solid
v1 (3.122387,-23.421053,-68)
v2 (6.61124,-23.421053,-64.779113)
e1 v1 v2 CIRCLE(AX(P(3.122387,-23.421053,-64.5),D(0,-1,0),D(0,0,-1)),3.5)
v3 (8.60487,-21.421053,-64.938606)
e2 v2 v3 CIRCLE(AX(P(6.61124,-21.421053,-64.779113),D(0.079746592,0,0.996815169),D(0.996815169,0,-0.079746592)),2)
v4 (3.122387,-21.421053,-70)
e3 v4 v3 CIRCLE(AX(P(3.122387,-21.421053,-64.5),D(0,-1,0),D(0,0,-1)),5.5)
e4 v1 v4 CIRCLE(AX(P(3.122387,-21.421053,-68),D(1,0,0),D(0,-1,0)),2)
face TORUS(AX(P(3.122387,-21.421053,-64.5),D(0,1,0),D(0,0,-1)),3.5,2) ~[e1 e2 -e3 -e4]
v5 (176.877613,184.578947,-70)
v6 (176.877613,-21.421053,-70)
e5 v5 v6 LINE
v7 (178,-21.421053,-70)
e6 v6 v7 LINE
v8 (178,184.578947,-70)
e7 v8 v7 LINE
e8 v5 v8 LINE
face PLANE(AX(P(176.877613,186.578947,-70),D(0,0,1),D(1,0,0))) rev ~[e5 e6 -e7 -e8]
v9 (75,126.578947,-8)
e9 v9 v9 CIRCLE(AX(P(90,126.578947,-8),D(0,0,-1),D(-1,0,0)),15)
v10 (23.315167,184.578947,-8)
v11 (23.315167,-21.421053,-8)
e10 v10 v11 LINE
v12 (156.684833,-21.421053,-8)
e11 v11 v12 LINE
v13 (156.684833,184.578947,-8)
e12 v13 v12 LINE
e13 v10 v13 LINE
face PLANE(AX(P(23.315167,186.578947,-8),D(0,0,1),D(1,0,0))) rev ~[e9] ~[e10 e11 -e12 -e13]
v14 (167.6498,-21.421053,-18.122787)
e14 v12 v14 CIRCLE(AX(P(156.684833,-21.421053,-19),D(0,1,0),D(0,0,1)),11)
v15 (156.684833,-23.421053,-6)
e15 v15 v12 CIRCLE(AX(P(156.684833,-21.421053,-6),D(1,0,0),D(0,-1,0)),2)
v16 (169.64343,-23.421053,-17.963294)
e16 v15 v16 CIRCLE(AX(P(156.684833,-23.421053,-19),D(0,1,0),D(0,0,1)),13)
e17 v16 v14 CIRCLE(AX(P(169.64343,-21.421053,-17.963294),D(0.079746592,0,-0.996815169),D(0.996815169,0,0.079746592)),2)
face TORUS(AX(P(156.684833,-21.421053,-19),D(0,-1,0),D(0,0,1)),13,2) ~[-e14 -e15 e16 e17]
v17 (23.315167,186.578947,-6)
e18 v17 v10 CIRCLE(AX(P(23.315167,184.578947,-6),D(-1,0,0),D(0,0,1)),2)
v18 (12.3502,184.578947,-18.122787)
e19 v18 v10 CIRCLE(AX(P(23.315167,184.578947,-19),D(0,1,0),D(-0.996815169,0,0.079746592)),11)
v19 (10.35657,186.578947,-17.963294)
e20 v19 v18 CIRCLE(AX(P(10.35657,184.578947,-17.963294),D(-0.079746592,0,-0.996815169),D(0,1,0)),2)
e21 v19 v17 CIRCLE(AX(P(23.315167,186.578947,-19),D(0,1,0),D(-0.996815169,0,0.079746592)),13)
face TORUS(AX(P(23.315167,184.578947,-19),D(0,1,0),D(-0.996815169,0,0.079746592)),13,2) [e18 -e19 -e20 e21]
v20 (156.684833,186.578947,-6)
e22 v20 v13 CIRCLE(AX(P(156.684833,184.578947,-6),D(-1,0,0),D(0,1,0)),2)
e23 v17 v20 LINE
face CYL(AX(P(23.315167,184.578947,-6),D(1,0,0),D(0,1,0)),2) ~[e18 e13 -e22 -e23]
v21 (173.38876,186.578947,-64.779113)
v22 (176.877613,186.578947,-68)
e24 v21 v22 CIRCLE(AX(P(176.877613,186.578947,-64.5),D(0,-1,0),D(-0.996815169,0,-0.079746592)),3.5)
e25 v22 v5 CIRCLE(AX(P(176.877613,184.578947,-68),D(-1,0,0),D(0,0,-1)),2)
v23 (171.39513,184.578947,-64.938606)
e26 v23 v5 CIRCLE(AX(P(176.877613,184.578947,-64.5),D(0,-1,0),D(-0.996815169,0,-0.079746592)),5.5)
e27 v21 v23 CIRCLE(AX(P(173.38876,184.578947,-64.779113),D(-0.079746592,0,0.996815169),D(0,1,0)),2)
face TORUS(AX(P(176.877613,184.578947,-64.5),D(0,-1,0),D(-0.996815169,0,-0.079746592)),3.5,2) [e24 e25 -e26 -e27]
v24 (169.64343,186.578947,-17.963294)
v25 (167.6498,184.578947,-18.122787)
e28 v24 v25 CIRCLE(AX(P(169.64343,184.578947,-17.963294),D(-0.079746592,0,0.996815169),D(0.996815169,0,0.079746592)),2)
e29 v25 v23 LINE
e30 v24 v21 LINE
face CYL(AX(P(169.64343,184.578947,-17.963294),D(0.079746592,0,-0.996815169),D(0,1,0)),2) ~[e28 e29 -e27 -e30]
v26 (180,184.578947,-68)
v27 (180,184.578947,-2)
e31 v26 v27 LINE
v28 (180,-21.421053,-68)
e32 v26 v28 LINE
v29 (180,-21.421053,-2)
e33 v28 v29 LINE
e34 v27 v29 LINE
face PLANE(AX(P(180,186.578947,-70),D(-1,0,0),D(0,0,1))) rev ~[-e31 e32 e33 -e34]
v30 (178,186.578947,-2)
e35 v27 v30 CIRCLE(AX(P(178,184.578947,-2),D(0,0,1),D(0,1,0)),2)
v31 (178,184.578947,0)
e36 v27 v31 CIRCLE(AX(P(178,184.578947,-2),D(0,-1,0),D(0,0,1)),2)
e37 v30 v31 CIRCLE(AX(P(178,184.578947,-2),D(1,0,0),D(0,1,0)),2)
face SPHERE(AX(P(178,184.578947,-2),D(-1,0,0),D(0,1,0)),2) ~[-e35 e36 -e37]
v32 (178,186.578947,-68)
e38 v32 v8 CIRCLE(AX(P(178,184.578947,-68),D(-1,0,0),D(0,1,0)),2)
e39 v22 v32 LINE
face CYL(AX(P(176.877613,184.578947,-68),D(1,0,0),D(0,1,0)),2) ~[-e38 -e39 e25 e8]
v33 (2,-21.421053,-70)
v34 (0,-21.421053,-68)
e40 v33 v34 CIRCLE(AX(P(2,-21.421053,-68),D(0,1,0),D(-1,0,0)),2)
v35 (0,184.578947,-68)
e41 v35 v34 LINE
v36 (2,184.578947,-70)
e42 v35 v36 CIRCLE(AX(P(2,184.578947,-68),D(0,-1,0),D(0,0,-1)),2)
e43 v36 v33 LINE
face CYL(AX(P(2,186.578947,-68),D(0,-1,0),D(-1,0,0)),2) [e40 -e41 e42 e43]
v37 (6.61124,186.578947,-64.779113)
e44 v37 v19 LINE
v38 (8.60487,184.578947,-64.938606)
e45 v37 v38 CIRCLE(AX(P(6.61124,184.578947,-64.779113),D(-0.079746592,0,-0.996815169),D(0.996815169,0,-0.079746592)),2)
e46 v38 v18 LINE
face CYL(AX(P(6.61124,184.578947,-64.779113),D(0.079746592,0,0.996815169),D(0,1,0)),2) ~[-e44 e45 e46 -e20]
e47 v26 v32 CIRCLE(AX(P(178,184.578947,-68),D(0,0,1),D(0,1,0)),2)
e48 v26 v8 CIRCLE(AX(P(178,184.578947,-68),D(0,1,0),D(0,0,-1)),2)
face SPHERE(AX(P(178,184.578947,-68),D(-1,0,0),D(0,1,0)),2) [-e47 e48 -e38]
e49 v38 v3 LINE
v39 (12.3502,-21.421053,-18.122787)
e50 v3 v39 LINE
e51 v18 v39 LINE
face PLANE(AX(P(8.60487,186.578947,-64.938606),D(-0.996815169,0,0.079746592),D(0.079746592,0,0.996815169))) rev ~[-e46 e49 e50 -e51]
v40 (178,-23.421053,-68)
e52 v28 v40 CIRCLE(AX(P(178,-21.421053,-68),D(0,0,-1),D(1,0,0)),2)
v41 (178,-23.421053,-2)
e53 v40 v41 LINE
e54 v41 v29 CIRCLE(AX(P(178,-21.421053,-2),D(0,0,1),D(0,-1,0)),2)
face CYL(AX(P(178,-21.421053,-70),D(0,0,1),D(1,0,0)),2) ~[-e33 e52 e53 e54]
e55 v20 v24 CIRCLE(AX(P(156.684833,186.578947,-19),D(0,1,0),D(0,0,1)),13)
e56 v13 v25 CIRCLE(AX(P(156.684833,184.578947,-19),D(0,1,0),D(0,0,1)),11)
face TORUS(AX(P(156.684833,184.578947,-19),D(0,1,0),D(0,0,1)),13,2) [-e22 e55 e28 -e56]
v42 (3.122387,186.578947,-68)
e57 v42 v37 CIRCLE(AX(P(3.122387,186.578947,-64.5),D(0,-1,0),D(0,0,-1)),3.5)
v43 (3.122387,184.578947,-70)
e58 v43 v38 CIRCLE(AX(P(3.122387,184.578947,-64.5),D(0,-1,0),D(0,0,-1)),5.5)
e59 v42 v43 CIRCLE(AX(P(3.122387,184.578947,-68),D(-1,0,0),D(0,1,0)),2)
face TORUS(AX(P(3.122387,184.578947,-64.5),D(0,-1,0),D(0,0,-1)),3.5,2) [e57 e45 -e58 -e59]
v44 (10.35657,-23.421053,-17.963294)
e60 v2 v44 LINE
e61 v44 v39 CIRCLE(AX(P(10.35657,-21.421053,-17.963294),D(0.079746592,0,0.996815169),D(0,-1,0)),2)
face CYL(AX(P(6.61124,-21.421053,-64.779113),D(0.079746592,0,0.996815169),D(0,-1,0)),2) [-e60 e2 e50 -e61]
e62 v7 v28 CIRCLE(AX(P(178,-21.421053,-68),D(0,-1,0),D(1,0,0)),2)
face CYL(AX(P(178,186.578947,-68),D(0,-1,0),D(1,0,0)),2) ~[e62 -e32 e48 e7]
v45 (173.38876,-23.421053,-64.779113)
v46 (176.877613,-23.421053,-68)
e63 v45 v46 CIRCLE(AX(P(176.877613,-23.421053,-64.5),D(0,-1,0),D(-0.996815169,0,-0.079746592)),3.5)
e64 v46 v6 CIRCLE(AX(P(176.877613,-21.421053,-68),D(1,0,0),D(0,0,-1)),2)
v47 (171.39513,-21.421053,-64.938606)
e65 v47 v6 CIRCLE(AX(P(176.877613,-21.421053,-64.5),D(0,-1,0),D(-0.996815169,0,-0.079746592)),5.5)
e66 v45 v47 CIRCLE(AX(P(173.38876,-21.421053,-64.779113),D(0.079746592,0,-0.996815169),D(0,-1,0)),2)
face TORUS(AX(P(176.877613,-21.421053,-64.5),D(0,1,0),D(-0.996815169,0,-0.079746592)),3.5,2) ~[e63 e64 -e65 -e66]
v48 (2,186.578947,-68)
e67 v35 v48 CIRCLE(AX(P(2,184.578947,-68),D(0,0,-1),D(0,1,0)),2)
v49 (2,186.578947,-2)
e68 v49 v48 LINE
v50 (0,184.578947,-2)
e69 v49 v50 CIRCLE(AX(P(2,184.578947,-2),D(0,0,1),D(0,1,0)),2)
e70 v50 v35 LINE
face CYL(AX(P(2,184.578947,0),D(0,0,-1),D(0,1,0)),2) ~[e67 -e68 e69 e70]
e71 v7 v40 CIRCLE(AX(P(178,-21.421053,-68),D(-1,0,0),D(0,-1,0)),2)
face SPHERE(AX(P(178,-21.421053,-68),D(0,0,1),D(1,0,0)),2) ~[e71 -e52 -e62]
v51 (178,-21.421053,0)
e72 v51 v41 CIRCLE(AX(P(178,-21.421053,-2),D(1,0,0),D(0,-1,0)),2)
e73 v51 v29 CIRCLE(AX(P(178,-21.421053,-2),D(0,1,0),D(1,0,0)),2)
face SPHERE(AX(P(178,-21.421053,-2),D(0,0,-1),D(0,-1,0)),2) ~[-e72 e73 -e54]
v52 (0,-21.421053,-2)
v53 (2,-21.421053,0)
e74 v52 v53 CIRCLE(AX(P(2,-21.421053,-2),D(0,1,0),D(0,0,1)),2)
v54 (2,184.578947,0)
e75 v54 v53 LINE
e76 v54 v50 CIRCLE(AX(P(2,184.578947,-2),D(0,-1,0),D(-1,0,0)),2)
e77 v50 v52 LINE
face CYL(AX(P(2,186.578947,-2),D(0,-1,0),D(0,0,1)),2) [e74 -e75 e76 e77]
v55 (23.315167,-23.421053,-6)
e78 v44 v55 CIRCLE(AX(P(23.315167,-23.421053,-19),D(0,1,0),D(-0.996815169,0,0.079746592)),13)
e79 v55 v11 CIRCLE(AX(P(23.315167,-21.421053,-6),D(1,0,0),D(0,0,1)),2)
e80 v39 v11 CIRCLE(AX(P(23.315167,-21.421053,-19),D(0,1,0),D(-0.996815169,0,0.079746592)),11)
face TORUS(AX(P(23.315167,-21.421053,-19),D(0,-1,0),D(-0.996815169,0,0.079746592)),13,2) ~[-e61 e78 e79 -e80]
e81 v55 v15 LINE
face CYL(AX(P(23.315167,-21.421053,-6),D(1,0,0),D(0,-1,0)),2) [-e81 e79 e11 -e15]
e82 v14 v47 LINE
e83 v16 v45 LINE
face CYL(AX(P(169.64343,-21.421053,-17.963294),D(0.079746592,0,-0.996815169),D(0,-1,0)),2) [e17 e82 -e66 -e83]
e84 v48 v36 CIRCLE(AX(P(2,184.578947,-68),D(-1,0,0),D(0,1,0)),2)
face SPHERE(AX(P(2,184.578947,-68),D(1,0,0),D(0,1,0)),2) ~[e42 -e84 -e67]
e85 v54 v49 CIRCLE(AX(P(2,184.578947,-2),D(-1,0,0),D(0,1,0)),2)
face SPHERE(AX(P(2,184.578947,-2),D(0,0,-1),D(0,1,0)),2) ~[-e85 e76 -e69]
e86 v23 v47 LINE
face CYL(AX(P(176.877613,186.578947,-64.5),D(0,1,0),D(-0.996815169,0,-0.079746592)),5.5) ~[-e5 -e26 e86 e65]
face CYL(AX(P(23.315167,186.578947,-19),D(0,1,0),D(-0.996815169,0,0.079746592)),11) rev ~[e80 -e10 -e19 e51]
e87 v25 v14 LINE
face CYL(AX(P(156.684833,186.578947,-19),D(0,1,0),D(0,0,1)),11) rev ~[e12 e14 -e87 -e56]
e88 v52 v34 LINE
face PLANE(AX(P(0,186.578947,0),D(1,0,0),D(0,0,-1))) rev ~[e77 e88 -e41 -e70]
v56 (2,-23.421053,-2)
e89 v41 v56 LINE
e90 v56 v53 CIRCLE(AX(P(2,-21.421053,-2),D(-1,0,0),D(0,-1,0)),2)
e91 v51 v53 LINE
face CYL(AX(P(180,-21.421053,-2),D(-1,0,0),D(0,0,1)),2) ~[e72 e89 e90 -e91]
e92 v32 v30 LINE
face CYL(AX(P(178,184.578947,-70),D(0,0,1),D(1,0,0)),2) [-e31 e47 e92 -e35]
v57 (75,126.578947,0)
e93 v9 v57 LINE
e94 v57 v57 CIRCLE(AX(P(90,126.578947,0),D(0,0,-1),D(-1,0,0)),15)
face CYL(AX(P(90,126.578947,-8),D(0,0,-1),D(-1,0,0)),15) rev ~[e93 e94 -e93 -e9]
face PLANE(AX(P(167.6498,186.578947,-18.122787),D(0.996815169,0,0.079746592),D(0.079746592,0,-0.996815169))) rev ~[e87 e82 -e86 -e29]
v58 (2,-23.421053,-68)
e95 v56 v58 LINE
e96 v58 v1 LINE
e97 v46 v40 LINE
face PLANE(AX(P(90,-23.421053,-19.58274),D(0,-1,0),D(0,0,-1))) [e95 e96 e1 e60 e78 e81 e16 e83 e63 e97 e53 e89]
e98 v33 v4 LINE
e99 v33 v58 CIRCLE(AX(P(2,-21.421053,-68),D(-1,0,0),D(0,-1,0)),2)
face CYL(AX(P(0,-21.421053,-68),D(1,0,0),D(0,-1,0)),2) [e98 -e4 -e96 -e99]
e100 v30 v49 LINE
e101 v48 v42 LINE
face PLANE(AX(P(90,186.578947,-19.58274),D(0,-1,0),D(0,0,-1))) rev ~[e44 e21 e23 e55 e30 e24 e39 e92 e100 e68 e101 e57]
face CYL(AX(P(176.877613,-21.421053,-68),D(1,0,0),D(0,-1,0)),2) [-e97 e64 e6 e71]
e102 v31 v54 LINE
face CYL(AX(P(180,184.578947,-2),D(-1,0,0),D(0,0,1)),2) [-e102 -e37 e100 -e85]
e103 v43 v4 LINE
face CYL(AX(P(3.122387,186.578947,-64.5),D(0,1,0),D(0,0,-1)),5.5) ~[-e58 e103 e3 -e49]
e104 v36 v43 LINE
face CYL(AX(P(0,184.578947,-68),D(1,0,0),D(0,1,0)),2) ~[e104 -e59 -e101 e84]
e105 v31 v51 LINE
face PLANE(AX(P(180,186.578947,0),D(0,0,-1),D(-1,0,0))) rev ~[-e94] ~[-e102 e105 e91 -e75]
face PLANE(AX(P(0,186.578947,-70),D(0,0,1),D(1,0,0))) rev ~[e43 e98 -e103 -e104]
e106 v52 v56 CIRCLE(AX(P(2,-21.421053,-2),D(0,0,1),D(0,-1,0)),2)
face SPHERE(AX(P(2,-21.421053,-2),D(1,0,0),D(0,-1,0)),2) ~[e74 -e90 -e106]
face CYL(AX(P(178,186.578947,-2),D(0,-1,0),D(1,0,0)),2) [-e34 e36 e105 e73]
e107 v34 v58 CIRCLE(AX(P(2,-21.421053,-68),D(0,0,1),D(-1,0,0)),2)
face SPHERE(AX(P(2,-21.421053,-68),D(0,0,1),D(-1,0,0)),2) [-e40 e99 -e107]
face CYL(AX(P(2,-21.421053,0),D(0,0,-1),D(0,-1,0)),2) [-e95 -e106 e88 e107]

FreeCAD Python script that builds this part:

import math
import FreeCAD as App
import Part
import Sketcher


def edges_at(feature, points):
    """Names of the edges that pass closest to the given points."""
    edges = feature.Shape.Edges
    near = lambda p: min(range(len(edges)), key=lambda i: edges[i].distToShape(Part.Vertex(*p))[0])
    return sorted({f"Edge{near(p) + 1}" for p in points})

doc = App.newDocument("Part")
body = doc.addObject("PartDesign::Body", "Body")

# Sketch on XZ plane
sketch1 = body.newObject("Sketcher::SketchObject", "Sketch")
sketch1.AttachmentSupport = (doc.getObject("XZ_Plane"), [""])
sketch1.MapMode = "FlatFace"
sketch1.AttachmentOffset = App.Placement(App.Vector(0, 0, -186.578947), App.Rotation())
sketch1.addGeometry([
    Part.LineSegment(App.Vector(180, -70, 0), App.Vector(180, 0, 0)),  # 0
    Part.LineSegment(App.Vector(180, 0, 0), App.Vector(0, 0, 0)),  # 1
    Part.LineSegment(App.Vector(0, 0, 0), App.Vector(0, -70, 0)),  # 2
    Part.LineSegment(App.Vector(0, -70, 0), App.Vector(3.122387, -70, 0)),  # 3
    Part.ArcOfCircle(Part.Circle(App.Vector(3.122387, -64.5, 0), App.Vector(0, 0, 1), 5.5), math.radians(-90), math.radians(-4.574)),  # 4
    Part.LineSegment(App.Vector(8.60487, -64.938606, 0), App.Vector(12.3502, -18.122787, 0)),  # 5
    Part.ArcOfCircle(Part.Circle(App.Vector(23.315167, -19, 0), App.Vector(0, 0, 1), 11), math.radians(90), math.radians(175.426)),  # 6
    Part.LineSegment(App.Vector(23.315167, -8, 0), App.Vector(156.684833, -8, 0)),  # 7
    Part.ArcOfCircle(Part.Circle(App.Vector(156.684833, -19, 0), App.Vector(0, 0, 1), 11), math.radians(4.574), math.radians(90)),  # 8
    Part.LineSegment(App.Vector(167.6498, -18.122787, 0), App.Vector(171.39513, -64.938606, 0)),  # 9
    Part.ArcOfCircle(Part.Circle(App.Vector(176.877613, -64.5, 0), App.Vector(0, 0, 1), 5.5), math.radians(-175.426), math.radians(-90)),  # 10
    Part.LineSegment(App.Vector(176.877613, -70, 0), App.Vector(180, -70, 0)),  # 11
], False)
sketch1.addConstraint([
    Sketcher.Constraint("Coincident", 0, 2, 1, 1),
    Sketcher.Constraint("Coincident", 1, 2, 2, 1),
    Sketcher.Constraint("Coincident", 2, 2, 3, 1),
    Sketcher.Constraint("Tangent", 3, 2, 4, 1),
    Sketcher.Constraint("Tangent", 4, 2, 5, 1),
    Sketcher.Constraint("Tangent", 5, 2, 6, 2),
    Sketcher.Constraint("Tangent", 6, 1, 7, 1),
    Sketcher.Constraint("Tangent", 7, 2, 8, 2),
    Sketcher.Constraint("Tangent", 8, 1, 9, 1),
    Sketcher.Constraint("Tangent", 9, 2, 10, 1),
    Sketcher.Constraint("Tangent", 10, 2, 11, 1),
    Sketcher.Constraint("Coincident", 11, 2, 0, 1),
    Sketcher.Constraint("Vertical", 0),
    Sketcher.Constraint("Horizontal", 1),
    Sketcher.Constraint("Vertical", 2),
    Sketcher.Constraint("Horizontal", 3),
    Sketcher.Constraint("Horizontal", 7),
    Sketcher.Constraint("Horizontal", 11),
    Sketcher.Constraint("Coincident", 1, 2, -1, 1),
    Sketcher.Constraint("Equal", 6, 8),
    Sketcher.Constraint("Equal", 4, 10),
    Sketcher.Constraint("Horizontal", 4, 3, 10, 3),
    Sketcher.Constraint("Horizontal", 5, 2, 8, 1),
    Sketcher.Constraint("Equal", 3, 11),
    Sketcher.Constraint("Radius", 6, 11.0),
    Sketcher.Constraint("Radius", 4, 5.5),
    Sketcher.Constraint("DistanceX", 1, 2, 1, 1, 180.0),
    Sketcher.Constraint("DistanceY", 0, 1, 0, 2, 70.0),
    Sketcher.Constraint("DistanceY", 6, 3, -1, 1, 19.0),
    Sketcher.Constraint("DistanceX", -1, 1, 5, 2, 12.3502),
    Sketcher.Constraint("DistanceX", 3, 1, 3, 2, 3.122387),
])
pad1 = body.newObject("PartDesign::Pad", "Pad")
pad1.Profile = sketch1
pad1.Length = 210

# Sketch on XY plane
sketch2 = body.newObject("Sketcher::SketchObject", "Sketch001")
sketch2.AttachmentSupport = (doc.getObject("XY_Plane"), [""])
sketch2.MapMode = "FlatFace"
sketch2.AttachmentOffset = App.Placement(App.Vector(0, 0, -8), App.Rotation())
sketch2.addGeometry(Part.Circle(App.Vector(90, 126.578947, 0), App.Vector(0, 0, 1), 15), False)
sketch2.addConstraint([
    Sketcher.Constraint("Diameter", 0, 30.0),
    Sketcher.Constraint("DistanceX", -1, 1, 0, 3, 90.0),
    Sketcher.Constraint("DistanceY", -1, 1, 0, 3, 126.578947),
])
pocket1 = body.newObject("PartDesign::Pocket", "Pocket")
pocket1.Profile = sketch2
pocket1.Length = 10
pocket1.Reversed = True
doc.recompute()

fillet = body.newObject("PartDesign::Fillet", "Fillet")
fillet.Base = (pocket1, edges_at(pocket1, [
    (169.522, 186.579, -41.531),
    (164.146, 186.579, -10.918),
    (180, -23.421, -35),
    (90, 186.579, -8),
    (15.854, 186.579, -10.918),
    (10.478, 186.579, -41.531),
    (6.853, 186.579, -68.541),
    (1.561, 186.579, -70),
    (0, 186.579, -35),
    (90, 186.579, 0),
    (180, 186.579, -35),
    (178.439, 186.579, -70),
    (173.147, 186.579, -68.541),
    (90, -23.421, 0),
    (0, -23.421, -35),
    (0, 81.579, -70),
    (0, 81.579, 0),
    (180, 81.579, 0),
    (180, 81.579, -70),
    (1.561, -23.421, -70),
    (6.853, -23.421, -68.541),
    (10.478, -23.421, -41.531),
    (15.854, -23.421, -10.918),
    (90, -23.421, -8),
    (164.146, -23.421, -10.918),
    (169.522, -23.421, -41.531),
    (173.147, -23.421, -68.541),
    (178.439, -23.421, -70),
]))
fillet.Radius = 2

doc.recompute()
